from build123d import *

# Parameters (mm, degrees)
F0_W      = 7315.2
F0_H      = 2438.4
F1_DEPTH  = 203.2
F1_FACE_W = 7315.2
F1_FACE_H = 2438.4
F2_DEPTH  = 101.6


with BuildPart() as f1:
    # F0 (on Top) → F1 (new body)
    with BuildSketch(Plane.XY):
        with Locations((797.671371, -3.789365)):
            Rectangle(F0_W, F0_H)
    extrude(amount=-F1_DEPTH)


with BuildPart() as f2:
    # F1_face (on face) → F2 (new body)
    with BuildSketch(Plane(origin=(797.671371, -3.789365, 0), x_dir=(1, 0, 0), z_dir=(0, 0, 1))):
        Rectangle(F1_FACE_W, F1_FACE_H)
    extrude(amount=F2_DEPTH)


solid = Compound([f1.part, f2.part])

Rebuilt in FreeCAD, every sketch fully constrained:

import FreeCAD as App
import Part
import Sketcher
from FreeCAD import Vector
Q = App.Units.Quantity

doc = App.newDocument("Part")
body = doc.addObject("PartDesign::Body", "Body")

sketch1 = doc.addObject("Sketcher::SketchObject", "Sketch")
body.addObject(sketch1)
sketch1.AttachmentSupport = (doc.XY_Plane, [""])
sketch1.MapMode = "FlatFace"
sketch1.addGeometry([
    Part.LineSegment(Vector(-2860, 1215, 0), Vector(-2860, -1223, 0)),
    Part.LineSegment(Vector(-2860, -1223, 0), Vector(4455, -1223, 0)),
    Part.LineSegment(Vector(4455, -1223, 0), Vector(4455, 1215, 0)),
    Part.LineSegment(Vector(4455, 1215, 0), Vector(-2860, 1215, 0)),
], False)
sketch1.addConstraint([
    Sketcher.Constraint("Coincident", 0, 2, 1, 1),
    Sketcher.Constraint("Coincident", 1, 2, 2, 1),
    Sketcher.Constraint("Coincident", 2, 2, 3, 1),
    Sketcher.Constraint("Coincident", 3, 2, 0, 1),
    Sketcher.Constraint("Vertical", 0),
    Sketcher.Constraint("Horizontal", 1),
    Sketcher.Constraint("Vertical", 2),
    Sketcher.Constraint("Horizontal", 3),
    Sketcher.Constraint("DistanceX", 1, 1, 1, 2, Q("288 in")),
    Sketcher.Constraint("DistanceY", 0, 2, 0, 1, Q("96 in")),
    Sketcher.Constraint("DistanceX", 0, 2, -1, 1, Q("2859.928629 mm")),
    Sketcher.Constraint("DistanceY", 0, 2, -1, 1, Q("1222.989365 mm")),
])
pad1 = doc.addObject("PartDesign::Pad", "Pad")
body.addObject(pad1)
pad1.Profile = sketch1
pad1.Length = Q("8 in")
pad1.Reversed = True
body2 = doc.addObject("PartDesign::Body", "Body001")

sketch2 = doc.addObject("Sketcher::SketchObject", "Sketch001")
body2.addObject(sketch2)
sketch2.AttachmentSupport = (doc.getObject("XY_Plane001"), [""])
sketch2.MapMode = "FlatFace"
sketch2.addGeometry([
    Part.LineSegment(Vector(-2860, 1215, 0), Vector(-2860, -1223, 0)),
    Part.LineSegment(Vector(-2860, -1223, 0), Vector(4455, -1223, 0)),
    Part.LineSegment(Vector(4455, -1223, 0), Vector(4455, 1215, 0)),
    Part.LineSegment(Vector(4455, 1215, 0), Vector(-2860, 1215, 0)),
], False)
sketch2.addConstraint([
    Sketcher.Constraint("Coincident", 0, 2, 1, 1),
    Sketcher.Constraint("Coincident", 1, 2, 2, 1),
    Sketcher.Constraint("Coincident", 2, 2, 3, 1),
    Sketcher.Constraint("Coincident", 3, 2, 0, 1),
    Sketcher.Constraint("Vertical", 0),
    Sketcher.Constraint("Horizontal", 1),
    Sketcher.Constraint("Vertical", 2),
    Sketcher.Constraint("Horizontal", 3),
    Sketcher.Constraint("DistanceX", 1, 1, 1, 2, Q("288 in")),
    Sketcher.Constraint("DistanceY", 0, 2, 0, 1, Q("96 in")),
    Sketcher.Constraint("DistanceX", 0, 2, -1, 1, Q("2859.928629 mm")),
    Sketcher.Constraint("DistanceY", 0, 2, -1, 1, Q("1222.989365 mm")),
])
pad2 = doc.addObject("PartDesign::Pad", "Pad001")
body2.addObject(pad2)
pad2.Profile = sketch2
pad2.Length = Q("4 in")

doc.recompute()
